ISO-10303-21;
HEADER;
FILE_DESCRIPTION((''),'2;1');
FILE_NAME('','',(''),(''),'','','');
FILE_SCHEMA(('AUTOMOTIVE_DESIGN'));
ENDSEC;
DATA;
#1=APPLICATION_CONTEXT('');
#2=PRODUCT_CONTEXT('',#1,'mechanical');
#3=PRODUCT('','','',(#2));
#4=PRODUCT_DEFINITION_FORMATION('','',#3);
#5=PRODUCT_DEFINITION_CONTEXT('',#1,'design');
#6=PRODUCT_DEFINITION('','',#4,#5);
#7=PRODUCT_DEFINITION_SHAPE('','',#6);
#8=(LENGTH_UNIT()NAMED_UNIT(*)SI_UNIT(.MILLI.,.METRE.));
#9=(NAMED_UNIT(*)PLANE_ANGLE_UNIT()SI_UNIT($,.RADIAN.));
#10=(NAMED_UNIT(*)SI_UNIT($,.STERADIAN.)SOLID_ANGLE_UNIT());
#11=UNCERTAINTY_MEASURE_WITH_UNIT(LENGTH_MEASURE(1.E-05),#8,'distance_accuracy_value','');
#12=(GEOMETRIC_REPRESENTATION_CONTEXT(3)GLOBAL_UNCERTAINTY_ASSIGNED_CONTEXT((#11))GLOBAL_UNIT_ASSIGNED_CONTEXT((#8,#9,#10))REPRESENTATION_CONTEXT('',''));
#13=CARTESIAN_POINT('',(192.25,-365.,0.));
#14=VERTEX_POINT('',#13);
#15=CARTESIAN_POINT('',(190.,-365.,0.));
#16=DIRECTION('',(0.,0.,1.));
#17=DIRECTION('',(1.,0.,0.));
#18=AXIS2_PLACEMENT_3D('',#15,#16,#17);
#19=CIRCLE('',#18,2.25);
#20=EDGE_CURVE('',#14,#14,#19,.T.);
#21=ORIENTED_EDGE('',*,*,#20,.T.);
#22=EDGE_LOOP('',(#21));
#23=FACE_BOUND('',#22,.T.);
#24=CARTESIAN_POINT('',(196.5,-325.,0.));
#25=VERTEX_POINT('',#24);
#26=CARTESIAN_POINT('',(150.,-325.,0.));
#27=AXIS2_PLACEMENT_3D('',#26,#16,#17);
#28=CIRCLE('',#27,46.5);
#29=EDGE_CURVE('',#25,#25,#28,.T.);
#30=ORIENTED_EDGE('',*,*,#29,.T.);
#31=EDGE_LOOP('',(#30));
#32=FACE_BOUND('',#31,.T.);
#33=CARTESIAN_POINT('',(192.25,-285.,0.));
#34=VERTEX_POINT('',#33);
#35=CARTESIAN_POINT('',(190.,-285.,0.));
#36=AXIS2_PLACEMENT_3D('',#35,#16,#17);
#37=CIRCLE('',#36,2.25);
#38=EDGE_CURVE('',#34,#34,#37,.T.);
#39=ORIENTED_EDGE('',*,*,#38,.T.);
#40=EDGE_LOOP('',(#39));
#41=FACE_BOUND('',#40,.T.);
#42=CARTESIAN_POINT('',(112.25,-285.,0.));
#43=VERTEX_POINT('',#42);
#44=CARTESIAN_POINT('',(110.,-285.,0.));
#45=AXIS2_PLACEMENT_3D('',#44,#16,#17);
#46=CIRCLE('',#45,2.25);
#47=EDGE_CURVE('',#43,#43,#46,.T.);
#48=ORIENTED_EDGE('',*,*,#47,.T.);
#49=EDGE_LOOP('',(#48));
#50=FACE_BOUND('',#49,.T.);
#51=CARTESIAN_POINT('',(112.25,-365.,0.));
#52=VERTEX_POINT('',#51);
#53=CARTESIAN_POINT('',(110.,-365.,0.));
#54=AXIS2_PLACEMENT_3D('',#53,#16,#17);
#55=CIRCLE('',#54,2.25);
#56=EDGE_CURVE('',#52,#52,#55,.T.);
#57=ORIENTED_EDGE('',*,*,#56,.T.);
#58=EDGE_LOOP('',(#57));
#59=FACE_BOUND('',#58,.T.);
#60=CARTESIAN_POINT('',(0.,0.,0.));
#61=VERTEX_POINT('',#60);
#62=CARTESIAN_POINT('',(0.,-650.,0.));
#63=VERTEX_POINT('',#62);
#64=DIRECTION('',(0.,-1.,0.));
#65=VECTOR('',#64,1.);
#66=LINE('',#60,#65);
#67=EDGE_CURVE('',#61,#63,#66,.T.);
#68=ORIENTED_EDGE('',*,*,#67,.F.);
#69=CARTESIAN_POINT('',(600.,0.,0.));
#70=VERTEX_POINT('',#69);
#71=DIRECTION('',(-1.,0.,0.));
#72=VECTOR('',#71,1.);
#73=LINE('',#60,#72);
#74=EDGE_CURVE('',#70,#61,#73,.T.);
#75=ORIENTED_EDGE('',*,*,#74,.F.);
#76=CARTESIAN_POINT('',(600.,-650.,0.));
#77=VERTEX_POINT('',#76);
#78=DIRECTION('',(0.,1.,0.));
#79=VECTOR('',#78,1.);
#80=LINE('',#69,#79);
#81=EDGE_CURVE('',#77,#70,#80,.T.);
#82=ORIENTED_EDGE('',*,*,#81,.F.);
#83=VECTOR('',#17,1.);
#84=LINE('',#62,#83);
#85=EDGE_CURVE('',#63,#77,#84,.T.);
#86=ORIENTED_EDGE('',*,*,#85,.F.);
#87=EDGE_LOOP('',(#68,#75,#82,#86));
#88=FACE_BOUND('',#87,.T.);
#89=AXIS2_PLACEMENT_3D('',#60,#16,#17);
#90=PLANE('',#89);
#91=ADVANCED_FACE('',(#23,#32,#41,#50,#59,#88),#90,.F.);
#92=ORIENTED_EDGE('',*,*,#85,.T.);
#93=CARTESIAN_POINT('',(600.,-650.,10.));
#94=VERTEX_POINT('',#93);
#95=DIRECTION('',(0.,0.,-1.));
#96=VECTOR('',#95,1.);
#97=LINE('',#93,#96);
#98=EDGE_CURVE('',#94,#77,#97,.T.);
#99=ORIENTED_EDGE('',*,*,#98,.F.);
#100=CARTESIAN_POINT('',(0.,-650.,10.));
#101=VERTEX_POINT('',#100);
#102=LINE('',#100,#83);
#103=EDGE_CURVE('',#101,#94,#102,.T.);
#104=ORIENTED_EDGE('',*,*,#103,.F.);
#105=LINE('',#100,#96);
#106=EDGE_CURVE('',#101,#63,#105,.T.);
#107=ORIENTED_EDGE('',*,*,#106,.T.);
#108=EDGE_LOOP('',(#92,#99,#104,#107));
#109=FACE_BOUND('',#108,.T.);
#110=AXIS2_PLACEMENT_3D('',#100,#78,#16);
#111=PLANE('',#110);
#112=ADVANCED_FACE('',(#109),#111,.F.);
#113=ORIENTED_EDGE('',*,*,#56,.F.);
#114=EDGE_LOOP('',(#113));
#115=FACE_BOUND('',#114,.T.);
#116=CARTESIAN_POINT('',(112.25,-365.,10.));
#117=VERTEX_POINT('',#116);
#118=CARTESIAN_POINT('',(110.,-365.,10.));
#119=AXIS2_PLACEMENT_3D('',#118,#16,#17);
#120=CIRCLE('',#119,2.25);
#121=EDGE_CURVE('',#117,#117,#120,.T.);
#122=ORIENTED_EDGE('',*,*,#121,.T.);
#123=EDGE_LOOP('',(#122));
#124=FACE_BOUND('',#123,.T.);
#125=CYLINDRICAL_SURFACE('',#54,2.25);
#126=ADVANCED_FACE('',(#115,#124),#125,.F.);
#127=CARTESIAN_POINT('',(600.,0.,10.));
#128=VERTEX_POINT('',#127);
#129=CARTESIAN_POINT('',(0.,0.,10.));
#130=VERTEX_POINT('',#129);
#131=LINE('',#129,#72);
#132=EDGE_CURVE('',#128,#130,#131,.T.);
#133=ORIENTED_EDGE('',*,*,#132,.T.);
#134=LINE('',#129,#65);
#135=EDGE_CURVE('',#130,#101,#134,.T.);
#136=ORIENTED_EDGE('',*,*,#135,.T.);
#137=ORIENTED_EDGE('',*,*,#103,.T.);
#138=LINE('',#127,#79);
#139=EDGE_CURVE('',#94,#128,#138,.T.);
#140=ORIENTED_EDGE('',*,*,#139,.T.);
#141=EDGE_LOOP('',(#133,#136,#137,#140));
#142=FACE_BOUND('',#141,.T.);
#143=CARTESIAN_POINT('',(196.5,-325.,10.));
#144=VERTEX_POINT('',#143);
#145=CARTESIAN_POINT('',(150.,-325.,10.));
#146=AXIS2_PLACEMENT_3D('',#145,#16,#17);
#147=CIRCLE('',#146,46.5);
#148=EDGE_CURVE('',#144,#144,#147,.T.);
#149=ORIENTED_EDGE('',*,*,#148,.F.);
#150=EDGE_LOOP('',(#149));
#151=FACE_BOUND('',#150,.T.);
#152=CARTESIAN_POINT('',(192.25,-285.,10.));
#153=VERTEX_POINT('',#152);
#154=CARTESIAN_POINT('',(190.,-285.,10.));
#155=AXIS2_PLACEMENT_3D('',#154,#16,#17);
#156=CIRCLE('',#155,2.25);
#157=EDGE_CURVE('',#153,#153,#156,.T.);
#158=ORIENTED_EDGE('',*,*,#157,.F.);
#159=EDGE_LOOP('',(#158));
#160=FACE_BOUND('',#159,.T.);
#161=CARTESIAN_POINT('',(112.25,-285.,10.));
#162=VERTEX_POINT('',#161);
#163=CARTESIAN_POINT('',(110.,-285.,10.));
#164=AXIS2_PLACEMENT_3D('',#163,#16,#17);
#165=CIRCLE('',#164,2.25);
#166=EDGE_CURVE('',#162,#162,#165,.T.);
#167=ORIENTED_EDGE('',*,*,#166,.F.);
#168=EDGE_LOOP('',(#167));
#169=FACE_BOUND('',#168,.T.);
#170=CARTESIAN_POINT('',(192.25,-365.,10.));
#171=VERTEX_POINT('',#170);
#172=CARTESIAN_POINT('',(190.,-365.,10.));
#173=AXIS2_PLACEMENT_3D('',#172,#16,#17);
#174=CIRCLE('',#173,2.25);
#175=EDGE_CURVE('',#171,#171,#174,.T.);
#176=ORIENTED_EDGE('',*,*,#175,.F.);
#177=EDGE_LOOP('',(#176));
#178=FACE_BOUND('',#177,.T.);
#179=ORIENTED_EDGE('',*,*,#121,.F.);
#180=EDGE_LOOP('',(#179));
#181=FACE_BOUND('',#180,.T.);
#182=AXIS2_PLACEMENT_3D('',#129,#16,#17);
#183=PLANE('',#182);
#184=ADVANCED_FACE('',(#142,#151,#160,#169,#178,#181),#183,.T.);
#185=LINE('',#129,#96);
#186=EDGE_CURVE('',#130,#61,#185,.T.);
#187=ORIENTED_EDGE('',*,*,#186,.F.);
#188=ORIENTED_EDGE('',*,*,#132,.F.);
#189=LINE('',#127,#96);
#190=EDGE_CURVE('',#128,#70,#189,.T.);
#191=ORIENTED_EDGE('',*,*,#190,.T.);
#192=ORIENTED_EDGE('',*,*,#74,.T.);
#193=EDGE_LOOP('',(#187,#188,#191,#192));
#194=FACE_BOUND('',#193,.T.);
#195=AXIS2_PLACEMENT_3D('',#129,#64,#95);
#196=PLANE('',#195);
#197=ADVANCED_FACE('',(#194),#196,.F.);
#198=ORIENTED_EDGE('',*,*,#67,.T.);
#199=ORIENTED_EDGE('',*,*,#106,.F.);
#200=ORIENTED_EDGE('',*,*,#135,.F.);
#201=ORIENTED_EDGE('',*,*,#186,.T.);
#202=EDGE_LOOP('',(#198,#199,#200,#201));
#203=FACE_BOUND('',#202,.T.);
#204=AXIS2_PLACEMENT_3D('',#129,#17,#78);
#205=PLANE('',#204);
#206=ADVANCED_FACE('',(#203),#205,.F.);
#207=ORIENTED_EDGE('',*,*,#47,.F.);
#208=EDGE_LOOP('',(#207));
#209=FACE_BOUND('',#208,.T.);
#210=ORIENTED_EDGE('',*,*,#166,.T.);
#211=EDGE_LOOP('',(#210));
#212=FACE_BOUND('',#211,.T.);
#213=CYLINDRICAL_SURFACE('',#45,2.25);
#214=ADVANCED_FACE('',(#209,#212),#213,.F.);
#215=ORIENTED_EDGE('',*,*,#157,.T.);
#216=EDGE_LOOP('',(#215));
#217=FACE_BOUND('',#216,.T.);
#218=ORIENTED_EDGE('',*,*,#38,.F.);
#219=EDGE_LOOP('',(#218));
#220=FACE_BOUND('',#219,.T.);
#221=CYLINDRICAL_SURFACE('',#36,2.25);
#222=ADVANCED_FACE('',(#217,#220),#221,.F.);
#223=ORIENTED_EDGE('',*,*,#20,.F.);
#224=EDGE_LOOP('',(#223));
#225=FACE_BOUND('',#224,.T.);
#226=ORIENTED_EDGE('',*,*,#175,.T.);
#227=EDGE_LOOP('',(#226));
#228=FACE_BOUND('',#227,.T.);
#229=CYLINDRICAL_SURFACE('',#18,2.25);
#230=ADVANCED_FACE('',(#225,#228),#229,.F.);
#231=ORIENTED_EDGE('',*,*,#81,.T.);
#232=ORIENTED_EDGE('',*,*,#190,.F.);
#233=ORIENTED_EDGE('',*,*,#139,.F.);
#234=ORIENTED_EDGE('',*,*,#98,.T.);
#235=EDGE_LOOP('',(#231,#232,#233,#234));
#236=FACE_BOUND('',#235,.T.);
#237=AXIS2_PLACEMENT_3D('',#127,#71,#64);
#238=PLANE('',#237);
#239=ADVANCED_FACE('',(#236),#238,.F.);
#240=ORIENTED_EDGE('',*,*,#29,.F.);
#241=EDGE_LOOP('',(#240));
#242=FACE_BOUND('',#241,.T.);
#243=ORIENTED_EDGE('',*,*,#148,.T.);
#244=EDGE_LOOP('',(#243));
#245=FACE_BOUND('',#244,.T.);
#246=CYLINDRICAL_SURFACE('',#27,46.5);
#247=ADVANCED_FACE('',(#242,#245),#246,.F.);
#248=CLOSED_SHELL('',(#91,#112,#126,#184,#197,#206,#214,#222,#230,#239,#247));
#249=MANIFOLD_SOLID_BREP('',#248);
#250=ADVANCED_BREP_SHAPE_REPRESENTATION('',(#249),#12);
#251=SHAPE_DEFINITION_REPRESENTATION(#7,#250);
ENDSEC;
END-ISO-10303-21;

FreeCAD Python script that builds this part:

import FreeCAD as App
import Part
import Sketcher
from FreeCAD import Vector


def add_polygon(sketch, points):
    """Adds a closed chain of lines whose ends are joined by coincident constraints."""
    first, n = sketch.GeometryCount, len(points)
    for a, b in zip(points, points[1:] + points[:1]):
        sketch.addGeometry(Part.LineSegment(App.Vector(*a, 0), App.Vector(*b, 0)), False)
    for i in range(n):
        sketch.addConstraint(Sketcher.Constraint("Coincident", first + i, 2, first + (i + 1) % n, 1))

doc = App.newDocument("Part")
body = doc.addObject("PartDesign::Body", "Body")

# Sketch on XY plane
sketch1 = body.newObject("Sketcher::SketchObject", "Sketch")
sketch1.AttachmentSupport = (doc.getObject("XY_Plane"), [""])
sketch1.MapMode = "FlatFace"
add_polygon(sketch1, [(0, 0), (0, -650), (600, -650), (600, 0)])  # lines 0-3
sketch1.addConstraint(Sketcher.Constraint("Vertical", 0))
sketch1.addConstraint(Sketcher.Constraint("Horizontal", 1))
sketch1.addConstraint(Sketcher.Constraint("Vertical", 2))
sketch1.addConstraint(Sketcher.Constraint("Horizontal", 3))
sketch1.addConstraint(Sketcher.Constraint("Coincident", 3, 2, -1, 1))
sketch1.addConstraint(Sketcher.Constraint("DistanceX", 1, 1, 1, 2, 600.0))
sketch1.addConstraint(Sketcher.Constraint("DistanceY", 0, 2, 0, 1, 650.0))
pad1 = body.newObject("PartDesign::Pad", "Pad")
pad1.Profile = sketch1
pad1.Length = 10

# Sketch on XY plane
sketch2 = body.newObject("Sketcher::SketchObject", "Sketch001")
sketch2.AttachmentSupport = (doc.getObject("XY_Plane"), [""])
sketch2.MapMode = "FlatFace"
sketch2.AttachmentOffset = App.Placement(Vector(0, 0, 10), App.Rotation())
sketch2.addGeometry(Part.Circle(Vector(150, -325, 0), Vector(0, 0, 1), 46.5), False)
sketch2.addGeometry(Part.Circle(Vector(110, -285, 0), Vector(0, 0, 1), 2.2), False)
sketch2.addGeometry(Part.Circle(Vector(190, -285, 0), Vector(0, 0, 1), 2.2), False)
sketch2.addGeometry(Part.Circle(Vector(190, -365, 0), Vector(0, 0, 1), 2.2), False)
sketch2.addGeometry(Part.Circle(Vector(110, -365, 0), Vector(0, 0, 1), 2.2), False)
sketch2.addConstraint(Sketcher.Constraint("Equal", 1, 2))
sketch2.addConstraint(Sketcher.Constraint("Equal", 2, 3))
sketch2.addConstraint(Sketcher.Constraint("Equal", 3, 4))
sketch2.addConstraint(Sketcher.Constraint("Horizontal", 1, 3, 2, 3))
sketch2.addConstraint(Sketcher.Constraint("Horizontal", 3, 3, 4, 3))
sketch2.addConstraint(Sketcher.Constraint("Vertical", 2, 3, 3, 3))
sketch2.addConstraint(Sketcher.Constraint("Vertical", 1, 3, 4, 3))
sketch2.addConstraint(Sketcher.Constraint("Diameter", 0, 93.0))
sketch2.addConstraint(Sketcher.Constraint("Diameter", 1, 4.5))
sketch2.addConstraint(Sketcher.Constraint("DistanceX", -1, 1, 0, 3, 150.0))
sketch2.addConstraint(Sketcher.Constraint("DistanceY", 0, 3, -1, 1, 325.0))
sketch2.addConstraint(Sketcher.Constraint("DistanceX", -1, 1, 1, 3, 110.0))
sketch2.addConstraint(Sketcher.Constraint("DistanceY", 1, 3, -1, 1, 285.0))
sketch2.addConstraint(Sketcher.Constraint("DistanceX", -1, 1, 2, 3, 190.0))
sketch2.addConstraint(Sketcher.Constraint("DistanceY", 3, 3, -1, 1, 365.0))
pocket1 = body.newObject("PartDesign::Pocket", "Pocket")
pocket1.Profile = sketch2
pocket1.Length = 10

doc.recompute()
